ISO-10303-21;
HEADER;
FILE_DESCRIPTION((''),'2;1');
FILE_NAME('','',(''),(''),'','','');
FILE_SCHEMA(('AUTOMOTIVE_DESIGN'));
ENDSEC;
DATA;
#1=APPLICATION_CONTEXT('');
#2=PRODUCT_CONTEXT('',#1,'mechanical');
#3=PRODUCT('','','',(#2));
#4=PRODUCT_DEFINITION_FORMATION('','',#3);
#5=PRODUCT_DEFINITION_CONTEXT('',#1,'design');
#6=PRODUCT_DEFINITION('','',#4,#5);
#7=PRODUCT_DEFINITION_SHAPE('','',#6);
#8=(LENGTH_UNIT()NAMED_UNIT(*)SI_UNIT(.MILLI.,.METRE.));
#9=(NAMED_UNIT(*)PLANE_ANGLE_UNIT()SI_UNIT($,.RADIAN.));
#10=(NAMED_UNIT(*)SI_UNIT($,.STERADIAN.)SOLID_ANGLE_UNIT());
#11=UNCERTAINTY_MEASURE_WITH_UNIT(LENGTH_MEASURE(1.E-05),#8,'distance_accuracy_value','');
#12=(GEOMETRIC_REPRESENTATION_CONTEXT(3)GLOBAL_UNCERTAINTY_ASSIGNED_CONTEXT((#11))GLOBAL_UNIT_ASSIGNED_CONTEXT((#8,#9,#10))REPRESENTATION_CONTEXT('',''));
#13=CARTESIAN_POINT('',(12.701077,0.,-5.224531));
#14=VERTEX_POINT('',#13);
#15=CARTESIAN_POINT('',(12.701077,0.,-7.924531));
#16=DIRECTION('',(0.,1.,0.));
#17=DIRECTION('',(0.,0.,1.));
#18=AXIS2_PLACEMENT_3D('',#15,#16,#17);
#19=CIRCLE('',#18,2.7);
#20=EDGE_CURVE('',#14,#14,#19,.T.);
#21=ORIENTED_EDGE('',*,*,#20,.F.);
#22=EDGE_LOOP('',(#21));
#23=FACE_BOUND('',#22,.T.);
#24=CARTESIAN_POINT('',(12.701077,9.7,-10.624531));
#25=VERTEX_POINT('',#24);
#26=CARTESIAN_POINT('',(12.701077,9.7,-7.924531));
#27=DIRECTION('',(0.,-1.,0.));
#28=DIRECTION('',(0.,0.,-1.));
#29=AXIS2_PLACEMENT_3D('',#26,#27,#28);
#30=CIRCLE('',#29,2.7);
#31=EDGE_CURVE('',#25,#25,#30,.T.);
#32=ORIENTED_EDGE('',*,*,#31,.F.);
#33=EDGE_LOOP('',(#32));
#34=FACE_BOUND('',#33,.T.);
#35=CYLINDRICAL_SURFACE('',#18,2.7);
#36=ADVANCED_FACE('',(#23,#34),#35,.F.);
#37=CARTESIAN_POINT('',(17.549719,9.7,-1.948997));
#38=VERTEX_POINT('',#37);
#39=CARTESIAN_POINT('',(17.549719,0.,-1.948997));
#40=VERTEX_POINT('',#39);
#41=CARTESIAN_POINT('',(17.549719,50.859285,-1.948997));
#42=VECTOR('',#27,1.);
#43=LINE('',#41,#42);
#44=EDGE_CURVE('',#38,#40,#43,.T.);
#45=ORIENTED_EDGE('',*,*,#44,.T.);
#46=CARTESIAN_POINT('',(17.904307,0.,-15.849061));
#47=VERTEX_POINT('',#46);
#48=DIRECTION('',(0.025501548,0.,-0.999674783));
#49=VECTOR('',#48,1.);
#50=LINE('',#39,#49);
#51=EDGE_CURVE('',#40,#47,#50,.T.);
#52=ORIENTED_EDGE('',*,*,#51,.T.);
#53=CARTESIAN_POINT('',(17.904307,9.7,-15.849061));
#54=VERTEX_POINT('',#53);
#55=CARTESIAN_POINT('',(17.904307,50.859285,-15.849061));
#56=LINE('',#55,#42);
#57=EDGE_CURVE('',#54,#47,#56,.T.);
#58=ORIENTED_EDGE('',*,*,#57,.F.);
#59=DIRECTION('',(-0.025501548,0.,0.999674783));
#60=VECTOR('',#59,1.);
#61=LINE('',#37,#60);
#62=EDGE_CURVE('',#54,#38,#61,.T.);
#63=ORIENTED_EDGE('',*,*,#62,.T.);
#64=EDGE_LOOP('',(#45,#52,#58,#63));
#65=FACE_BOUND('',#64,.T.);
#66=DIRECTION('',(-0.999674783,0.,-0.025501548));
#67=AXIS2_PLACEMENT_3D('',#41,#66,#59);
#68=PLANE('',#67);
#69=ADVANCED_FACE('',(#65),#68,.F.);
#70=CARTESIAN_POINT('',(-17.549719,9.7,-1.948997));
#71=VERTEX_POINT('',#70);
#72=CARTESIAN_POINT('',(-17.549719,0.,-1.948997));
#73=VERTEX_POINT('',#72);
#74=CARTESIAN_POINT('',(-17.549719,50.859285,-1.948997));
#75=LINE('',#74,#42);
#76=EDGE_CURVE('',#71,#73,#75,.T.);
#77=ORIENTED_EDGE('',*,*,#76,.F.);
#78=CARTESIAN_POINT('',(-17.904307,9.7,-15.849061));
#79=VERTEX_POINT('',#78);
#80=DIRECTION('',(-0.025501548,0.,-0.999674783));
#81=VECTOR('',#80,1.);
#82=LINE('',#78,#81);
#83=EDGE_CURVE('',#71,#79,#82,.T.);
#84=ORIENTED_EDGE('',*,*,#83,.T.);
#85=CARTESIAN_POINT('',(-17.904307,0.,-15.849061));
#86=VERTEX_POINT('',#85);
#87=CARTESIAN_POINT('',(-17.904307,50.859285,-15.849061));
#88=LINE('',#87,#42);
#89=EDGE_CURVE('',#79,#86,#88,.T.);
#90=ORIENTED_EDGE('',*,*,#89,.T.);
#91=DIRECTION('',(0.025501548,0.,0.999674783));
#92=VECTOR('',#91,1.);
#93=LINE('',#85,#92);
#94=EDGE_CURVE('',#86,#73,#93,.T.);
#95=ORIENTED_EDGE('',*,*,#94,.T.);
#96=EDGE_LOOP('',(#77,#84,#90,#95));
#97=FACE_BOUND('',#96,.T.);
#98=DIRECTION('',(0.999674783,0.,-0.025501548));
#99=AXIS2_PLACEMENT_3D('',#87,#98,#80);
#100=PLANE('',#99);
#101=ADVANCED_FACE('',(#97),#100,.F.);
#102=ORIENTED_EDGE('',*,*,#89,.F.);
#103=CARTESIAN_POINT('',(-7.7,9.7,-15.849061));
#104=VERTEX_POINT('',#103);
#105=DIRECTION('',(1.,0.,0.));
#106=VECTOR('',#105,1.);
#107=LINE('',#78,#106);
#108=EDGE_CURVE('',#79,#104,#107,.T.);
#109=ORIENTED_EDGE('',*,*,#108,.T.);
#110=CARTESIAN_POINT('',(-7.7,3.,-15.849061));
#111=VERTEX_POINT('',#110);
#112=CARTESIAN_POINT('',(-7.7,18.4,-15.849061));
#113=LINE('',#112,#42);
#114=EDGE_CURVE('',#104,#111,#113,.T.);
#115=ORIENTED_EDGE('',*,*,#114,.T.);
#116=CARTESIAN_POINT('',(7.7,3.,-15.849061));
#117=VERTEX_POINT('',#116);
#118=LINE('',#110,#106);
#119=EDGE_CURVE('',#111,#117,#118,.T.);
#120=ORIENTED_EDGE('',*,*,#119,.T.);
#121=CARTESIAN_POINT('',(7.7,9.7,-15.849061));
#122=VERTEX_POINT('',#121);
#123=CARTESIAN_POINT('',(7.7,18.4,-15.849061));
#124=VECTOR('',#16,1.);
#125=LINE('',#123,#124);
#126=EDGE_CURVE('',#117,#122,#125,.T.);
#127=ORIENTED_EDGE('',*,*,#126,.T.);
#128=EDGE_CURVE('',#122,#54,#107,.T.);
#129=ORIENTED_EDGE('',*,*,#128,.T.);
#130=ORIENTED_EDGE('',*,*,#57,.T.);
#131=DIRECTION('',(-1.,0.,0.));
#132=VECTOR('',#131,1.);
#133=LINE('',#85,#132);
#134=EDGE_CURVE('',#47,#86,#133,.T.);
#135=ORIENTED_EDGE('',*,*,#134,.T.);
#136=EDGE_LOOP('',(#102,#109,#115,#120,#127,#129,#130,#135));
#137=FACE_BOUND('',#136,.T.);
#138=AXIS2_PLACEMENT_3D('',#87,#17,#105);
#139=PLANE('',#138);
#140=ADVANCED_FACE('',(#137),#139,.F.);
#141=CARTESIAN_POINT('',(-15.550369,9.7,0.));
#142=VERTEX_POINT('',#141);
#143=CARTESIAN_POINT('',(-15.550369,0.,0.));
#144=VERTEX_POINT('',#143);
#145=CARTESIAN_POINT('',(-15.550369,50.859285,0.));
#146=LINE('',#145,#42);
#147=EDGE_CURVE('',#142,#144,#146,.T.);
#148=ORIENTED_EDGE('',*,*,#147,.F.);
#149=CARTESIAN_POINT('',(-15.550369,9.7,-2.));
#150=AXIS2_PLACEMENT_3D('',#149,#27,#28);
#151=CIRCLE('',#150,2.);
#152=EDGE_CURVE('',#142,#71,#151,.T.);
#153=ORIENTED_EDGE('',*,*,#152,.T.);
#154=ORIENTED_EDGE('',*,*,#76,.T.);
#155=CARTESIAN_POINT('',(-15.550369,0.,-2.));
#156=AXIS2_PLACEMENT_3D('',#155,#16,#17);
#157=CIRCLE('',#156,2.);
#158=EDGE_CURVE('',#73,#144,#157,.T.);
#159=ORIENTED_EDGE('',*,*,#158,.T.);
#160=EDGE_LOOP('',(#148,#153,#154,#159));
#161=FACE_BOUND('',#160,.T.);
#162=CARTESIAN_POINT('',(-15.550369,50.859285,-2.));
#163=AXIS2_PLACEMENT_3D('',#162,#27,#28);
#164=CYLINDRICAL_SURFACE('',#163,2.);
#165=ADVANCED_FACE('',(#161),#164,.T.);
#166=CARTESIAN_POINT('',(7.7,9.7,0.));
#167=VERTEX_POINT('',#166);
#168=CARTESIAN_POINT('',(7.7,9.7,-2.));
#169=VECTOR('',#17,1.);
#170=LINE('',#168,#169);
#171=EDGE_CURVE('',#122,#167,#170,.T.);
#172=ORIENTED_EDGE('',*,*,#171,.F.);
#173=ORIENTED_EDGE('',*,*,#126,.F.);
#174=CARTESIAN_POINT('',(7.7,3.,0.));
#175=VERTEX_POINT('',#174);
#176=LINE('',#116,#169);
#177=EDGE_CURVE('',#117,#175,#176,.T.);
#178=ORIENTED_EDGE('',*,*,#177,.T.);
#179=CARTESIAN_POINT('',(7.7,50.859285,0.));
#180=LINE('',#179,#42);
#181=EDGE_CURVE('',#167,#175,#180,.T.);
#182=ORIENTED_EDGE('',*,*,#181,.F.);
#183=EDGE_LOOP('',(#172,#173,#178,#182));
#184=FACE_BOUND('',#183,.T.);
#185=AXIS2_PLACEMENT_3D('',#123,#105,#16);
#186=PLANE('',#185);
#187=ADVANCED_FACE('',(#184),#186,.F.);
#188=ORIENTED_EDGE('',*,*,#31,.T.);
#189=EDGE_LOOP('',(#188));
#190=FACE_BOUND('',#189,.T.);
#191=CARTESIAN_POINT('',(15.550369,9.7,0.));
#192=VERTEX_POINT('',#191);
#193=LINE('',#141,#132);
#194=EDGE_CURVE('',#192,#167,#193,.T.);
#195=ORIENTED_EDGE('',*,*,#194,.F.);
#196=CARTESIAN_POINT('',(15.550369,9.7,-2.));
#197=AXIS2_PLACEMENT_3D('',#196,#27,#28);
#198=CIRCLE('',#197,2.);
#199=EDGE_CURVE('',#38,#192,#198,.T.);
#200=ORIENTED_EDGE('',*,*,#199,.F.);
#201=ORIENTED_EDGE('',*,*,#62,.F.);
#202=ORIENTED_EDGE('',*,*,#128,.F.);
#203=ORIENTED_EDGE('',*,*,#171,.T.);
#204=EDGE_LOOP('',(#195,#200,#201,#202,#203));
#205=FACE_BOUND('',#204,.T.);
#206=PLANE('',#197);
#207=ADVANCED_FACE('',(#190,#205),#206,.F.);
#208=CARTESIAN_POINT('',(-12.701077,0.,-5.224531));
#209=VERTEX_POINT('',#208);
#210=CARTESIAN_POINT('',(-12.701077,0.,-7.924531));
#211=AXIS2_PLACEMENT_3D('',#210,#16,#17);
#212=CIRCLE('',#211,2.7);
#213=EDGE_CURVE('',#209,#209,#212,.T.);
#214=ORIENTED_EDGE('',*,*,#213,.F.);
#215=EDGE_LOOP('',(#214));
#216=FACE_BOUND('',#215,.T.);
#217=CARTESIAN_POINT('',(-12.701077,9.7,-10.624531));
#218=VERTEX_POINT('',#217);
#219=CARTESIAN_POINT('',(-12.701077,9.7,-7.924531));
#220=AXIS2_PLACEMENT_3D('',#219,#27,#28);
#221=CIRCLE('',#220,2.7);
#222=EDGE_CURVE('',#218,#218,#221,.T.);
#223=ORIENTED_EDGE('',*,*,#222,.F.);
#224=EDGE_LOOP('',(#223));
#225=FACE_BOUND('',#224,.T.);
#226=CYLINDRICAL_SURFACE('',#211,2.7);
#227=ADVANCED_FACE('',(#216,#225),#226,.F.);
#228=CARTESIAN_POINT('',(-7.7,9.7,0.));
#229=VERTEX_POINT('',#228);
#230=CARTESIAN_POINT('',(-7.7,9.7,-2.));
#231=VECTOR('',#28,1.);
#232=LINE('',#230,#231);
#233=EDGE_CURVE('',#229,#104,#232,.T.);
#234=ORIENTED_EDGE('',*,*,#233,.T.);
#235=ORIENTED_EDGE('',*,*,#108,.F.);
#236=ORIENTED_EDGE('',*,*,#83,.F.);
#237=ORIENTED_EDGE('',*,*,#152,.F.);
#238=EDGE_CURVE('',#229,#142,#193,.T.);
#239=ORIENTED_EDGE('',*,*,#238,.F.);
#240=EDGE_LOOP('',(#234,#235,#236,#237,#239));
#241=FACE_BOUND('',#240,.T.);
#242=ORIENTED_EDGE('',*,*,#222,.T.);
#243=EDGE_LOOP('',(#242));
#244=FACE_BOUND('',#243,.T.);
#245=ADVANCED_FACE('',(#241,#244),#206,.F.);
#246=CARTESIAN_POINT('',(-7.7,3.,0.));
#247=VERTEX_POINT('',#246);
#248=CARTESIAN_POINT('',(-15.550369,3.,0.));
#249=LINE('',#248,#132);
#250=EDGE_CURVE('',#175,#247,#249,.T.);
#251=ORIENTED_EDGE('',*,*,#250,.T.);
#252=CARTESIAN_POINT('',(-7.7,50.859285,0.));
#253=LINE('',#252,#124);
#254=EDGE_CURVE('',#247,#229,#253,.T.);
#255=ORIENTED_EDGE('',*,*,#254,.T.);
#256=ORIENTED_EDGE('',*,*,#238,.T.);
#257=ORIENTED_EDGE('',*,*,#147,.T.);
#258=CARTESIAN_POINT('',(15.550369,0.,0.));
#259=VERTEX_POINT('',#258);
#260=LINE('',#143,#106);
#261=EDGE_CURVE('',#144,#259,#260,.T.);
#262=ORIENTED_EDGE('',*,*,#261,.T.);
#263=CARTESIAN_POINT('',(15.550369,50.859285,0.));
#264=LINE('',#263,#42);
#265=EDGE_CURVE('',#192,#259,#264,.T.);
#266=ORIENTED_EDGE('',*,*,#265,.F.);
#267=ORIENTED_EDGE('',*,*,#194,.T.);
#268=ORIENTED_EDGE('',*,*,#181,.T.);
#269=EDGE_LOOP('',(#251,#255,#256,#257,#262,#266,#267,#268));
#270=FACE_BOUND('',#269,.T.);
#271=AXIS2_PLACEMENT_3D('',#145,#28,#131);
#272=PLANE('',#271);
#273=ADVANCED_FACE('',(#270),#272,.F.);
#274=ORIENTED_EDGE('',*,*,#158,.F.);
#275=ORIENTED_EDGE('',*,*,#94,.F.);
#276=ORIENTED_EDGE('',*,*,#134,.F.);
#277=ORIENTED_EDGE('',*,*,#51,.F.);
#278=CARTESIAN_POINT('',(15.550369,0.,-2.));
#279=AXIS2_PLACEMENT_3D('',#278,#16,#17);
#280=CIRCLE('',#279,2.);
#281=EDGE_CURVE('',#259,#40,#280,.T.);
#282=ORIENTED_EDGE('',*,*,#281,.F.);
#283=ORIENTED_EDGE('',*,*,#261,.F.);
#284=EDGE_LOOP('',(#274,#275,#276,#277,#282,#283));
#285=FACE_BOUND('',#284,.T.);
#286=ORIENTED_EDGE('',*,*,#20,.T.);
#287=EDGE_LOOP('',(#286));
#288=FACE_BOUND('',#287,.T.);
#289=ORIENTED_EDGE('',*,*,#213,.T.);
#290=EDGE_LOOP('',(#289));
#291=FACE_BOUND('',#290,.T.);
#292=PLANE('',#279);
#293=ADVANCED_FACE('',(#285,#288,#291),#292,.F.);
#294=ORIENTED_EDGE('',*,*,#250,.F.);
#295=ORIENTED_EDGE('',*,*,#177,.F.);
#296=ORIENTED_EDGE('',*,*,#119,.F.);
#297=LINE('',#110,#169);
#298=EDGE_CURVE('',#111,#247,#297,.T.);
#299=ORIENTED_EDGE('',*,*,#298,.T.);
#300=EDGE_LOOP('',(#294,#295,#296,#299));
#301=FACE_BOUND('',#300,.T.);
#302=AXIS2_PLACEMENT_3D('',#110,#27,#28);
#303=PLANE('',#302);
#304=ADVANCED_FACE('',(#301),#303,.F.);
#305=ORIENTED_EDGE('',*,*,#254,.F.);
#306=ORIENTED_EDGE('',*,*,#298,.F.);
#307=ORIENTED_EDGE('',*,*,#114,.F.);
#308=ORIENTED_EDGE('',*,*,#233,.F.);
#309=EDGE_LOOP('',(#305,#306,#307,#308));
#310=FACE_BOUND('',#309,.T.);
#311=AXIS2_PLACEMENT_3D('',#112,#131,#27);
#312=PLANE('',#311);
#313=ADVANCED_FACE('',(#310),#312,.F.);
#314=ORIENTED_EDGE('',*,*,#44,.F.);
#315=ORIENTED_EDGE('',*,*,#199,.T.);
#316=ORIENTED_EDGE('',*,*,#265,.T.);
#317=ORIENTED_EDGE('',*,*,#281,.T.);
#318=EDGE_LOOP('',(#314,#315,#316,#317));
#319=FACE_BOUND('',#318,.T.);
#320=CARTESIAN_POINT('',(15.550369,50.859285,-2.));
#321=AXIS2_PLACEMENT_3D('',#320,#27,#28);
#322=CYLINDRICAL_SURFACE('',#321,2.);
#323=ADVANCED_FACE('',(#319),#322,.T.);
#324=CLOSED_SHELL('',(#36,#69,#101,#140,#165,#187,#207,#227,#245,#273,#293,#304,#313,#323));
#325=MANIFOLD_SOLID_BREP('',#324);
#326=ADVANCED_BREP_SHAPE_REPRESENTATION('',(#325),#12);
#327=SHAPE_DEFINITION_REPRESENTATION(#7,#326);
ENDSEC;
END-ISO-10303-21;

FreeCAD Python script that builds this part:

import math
import FreeCAD as App
import Part
import Sketcher

doc = App.newDocument("Part")
body = doc.addObject("PartDesign::Body", "Body")

# Sketch on XZ plane
sketch1 = body.newObject("Sketcher::SketchObject", "Sketch")
sketch1.AttachmentSupport = (doc.getObject("XZ_Plane"), [""])
sketch1.MapMode = "FlatFace"
sketch1.addGeometry([
    Part.LineSegment(App.Vector(17.9, -15.8, 0), App.Vector(-17.9, -15.8, 0)),  # 0
    Part.LineSegment(App.Vector(-17.9, -15.8, 0), App.Vector(-17.5, -1.9, 0)),  # 1
    Part.ArcOfCircle(Part.Circle(App.Vector(-15.6, -2, 0), App.Vector(0, 0, 1), 2), math.radians(90), math.radians(179)),  # 2
    Part.LineSegment(App.Vector(-15.6, 0, 0), App.Vector(15.6, 0, 0)),  # 3
    Part.ArcOfCircle(Part.Circle(App.Vector(15.6, -2, 0), App.Vector(0, 0, 1), 2), math.radians(1), math.radians(90)),  # 4
    Part.LineSegment(App.Vector(17.5, -1.9, 0), App.Vector(17.9, -15.8, 0)),  # 5
], False)
sketch1.addConstraint([
    Sketcher.Constraint("Coincident", 0, 2, 1, 1),
    Sketcher.Constraint("Tangent", 1, 2, 2, 2),
    Sketcher.Constraint("Tangent", 2, 1, 3, 1),
    Sketcher.Constraint("Tangent", 3, 2, 4, 2),
    Sketcher.Constraint("Tangent", 4, 1, 5, 1),
    Sketcher.Constraint("Coincident", 5, 2, 0, 1),
    Sketcher.Constraint("Horizontal", 0),
    Sketcher.Constraint("Horizontal", 3),
    Sketcher.Constraint("Equal", 2, 4),
    Sketcher.Constraint("Symmetric", 2, 1, 3, 2, -1, 1),
    Sketcher.Constraint("Horizontal", 1, 2, 4, 1),
    Sketcher.Constraint("Radius", 2, 2.0),
    Sketcher.Constraint("DistanceX", 3, 1, 3, 2, 31.100738),
    Sketcher.Constraint("DistanceX", 0, 2, 0, 1, 35.808614),
    Sketcher.Constraint("DistanceY", 0, 2, -1, 1, 15.849061),
])
pad1 = body.newObject("PartDesign::Pad", "Pad")
pad1.Profile = sketch1
pad1.Length = 9.7
pad1.Reversed = True

# Sketch on XY plane
sketch2 = body.newObject("Sketcher::SketchObject", "Sketch001")
sketch2.AttachmentSupport = (doc.getObject("XY_Plane"), [""])
sketch2.MapMode = "FlatFace"
sketch2.addGeometry([
    Part.LineSegment(App.Vector(-8, 18, 0), App.Vector(-8, 3, 0)),
    Part.LineSegment(App.Vector(-8, 3, 0), App.Vector(8, 3, 0)),
    Part.LineSegment(App.Vector(8, 3, 0), App.Vector(8, 18, 0)),
    Part.LineSegment(App.Vector(8, 18, 0), App.Vector(-8, 18, 0)),
], False)
sketch2.addConstraint([
    Sketcher.Constraint("Coincident", 0, 2, 1, 1),
    Sketcher.Constraint("Coincident", 1, 2, 2, 1),
    Sketcher.Constraint("Coincident", 2, 2, 3, 1),
    Sketcher.Constraint("Coincident", 3, 2, 0, 1),
    Sketcher.Constraint("Vertical", 0),
    Sketcher.Constraint("Horizontal", 1),
    Sketcher.Constraint("Vertical", 2),
    Sketcher.Constraint("Horizontal", 3),
    Sketcher.Constraint("Equal", 3, 0),
    Sketcher.Constraint("DistanceX", 1, 1, 1, 2, 15.4),
    Sketcher.Constraint("DistanceY", -1, 1, 0, 2, 3.0),
    Sketcher.Constraint("DistanceX", 0, 2, -1, 1, 7.7),
])
pocket1 = body.newObject("PartDesign::Pocket", "Pocket")
pocket1.Profile = sketch2
pocket1.Type = "ThroughAll"
pocket1.Midplane = True

# Sketch on XZ plane
sketch3 = body.newObject("Sketcher::SketchObject", "Sketch002")
sketch3.AttachmentSupport = (doc.getObject("XZ_Plane"), [""])
sketch3.MapMode = "FlatFace"
sketch3.AttachmentOffset = App.Placement(App.Vector(0, 0, -9.7), App.Rotation())
sketch3.addGeometry([
    Part.Circle(App.Vector(-12.7, -7.9, 0), App.Vector(0, 0, 1), 2.7),
    Part.Circle(App.Vector(12.7, -7.9, 0), App.Vector(0, 0, 1), 2.7),
], False)
sketch3.addConstraint([
    Sketcher.Constraint("Equal", 0, 1),
    Sketcher.Constraint("Symmetric", 0, 3, 1, 3, -2),
    Sketcher.Constraint("Diameter", 0, 5.4),
    Sketcher.Constraint("DistanceY", 0, 3, -1, 1, 7.924531),
    Sketcher.Constraint("DistanceX", 0, 3, -1, 1, 12.701077),
])
pocket2 = body.newObject("PartDesign::Pocket", "Pocket001")
pocket2.Profile = sketch3
pocket2.Type = "ThroughAll"
pocket2.Midplane = True

doc.recompute()
